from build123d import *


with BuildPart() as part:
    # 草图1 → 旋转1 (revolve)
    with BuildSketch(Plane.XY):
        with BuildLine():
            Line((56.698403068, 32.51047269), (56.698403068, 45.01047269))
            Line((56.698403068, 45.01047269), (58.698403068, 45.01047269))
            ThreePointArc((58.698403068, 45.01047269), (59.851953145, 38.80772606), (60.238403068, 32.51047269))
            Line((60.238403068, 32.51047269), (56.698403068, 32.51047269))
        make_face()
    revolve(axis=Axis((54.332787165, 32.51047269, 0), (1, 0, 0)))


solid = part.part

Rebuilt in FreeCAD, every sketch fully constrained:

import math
import FreeCAD as App
import Part
import Sketcher

V = App.Vector
Q = App.Units.Quantity

doc = App.newDocument("Part")
params = doc.addObject("Spreadsheet::Sheet", "Params")
for row, (alias, value) in enumerate([
    ("sketch1_width", "2 mm"),
    ("sketch1_height", "12.5 mm"),
    ("sketch1_width2", "3.54 mm"),
    ("revolution_angle", "360 deg"),
], start=1):
    params.set(f"A{row}", alias)
    params.set(f"B{row}", "=" + value)
    params.setAlias(f"B{row}", alias)

body = doc.addObject("PartDesign::Body", "Body")

# Sketch on XY plane
sketch1 = body.newObject("Sketcher::SketchObject", "Sketch")
sketch1.AttachmentSupport = (doc.getObject("XY_Plane"), [""])
sketch1.MapMode = "FlatFace"
sketch1.addGeometry([
    Part.LineSegment(V(56.7, 45, 0), V(56.7, 32.5, 0)),
    Part.LineSegment(V(56.7, 32.5, 0), V(60.2, 32.5, 0)),
    Part.ArcOfCircle(Part.Circle(V(8.7, 32.5, 0), V(0, 0, 1), 51.5), math.radians(0), math.radians(14.05)),
    Part.LineSegment(V(58.7, 45, 0), V(56.7, 45, 0)),
], False)
sketch1.addGeometry(Part.LineSegment(V(8.7, 32.5, 0), V(60.2, 32.5, 0)), True)  # axis
sketch1.addConstraint([
    Sketcher.Constraint("Coincident", 0, 2, 1, 1),
    Sketcher.Constraint("Coincident", 1, 2, 2, 1),
    Sketcher.Constraint("Coincident", 2, 2, 3, 1),
    Sketcher.Constraint("Coincident", 3, 2, 0, 1),
    Sketcher.Constraint("Vertical", 0),
    Sketcher.Constraint("Horizontal", 1),
    Sketcher.Constraint("Horizontal", 3),
    Sketcher.Constraint("Horizontal", 4),
    Sketcher.Constraint("Coincident", 4, 1, 2, 3),
    Sketcher.Constraint("Coincident", 4, 2, 1, 2),
    Sketcher.Constraint("DistanceX", 3, 2, 3, 1, Q("2 mm")),
    Sketcher.Constraint("DistanceY", 0, 2, 0, 1, Q("12.5 mm")),
    Sketcher.Constraint("DistanceX", 1, 1, 1, 2, Q("3.54 mm")),
    Sketcher.Constraint("DistanceX", -1, 1, 2, 3, Q("8.737884 mm")),
    Sketcher.Constraint("DistanceY", -1, 1, 2, 3, Q("32.510473 mm")),
])
sketch1.setExpression("Constraints[10]", "Params.sketch1_width")
sketch1.setExpression("Constraints[11]", "Params.sketch1_height")
sketch1.setExpression("Constraints[12]", "Params.sketch1_width2")
revolution = body.newObject("PartDesign::Revolution", "Revolution")
revolution.Profile = sketch1
revolution.ReferenceAxis = (sketch1, ["Axis0"])
revolution.setExpression("Angle", "Params.revolution_angle")

doc.recompute()
